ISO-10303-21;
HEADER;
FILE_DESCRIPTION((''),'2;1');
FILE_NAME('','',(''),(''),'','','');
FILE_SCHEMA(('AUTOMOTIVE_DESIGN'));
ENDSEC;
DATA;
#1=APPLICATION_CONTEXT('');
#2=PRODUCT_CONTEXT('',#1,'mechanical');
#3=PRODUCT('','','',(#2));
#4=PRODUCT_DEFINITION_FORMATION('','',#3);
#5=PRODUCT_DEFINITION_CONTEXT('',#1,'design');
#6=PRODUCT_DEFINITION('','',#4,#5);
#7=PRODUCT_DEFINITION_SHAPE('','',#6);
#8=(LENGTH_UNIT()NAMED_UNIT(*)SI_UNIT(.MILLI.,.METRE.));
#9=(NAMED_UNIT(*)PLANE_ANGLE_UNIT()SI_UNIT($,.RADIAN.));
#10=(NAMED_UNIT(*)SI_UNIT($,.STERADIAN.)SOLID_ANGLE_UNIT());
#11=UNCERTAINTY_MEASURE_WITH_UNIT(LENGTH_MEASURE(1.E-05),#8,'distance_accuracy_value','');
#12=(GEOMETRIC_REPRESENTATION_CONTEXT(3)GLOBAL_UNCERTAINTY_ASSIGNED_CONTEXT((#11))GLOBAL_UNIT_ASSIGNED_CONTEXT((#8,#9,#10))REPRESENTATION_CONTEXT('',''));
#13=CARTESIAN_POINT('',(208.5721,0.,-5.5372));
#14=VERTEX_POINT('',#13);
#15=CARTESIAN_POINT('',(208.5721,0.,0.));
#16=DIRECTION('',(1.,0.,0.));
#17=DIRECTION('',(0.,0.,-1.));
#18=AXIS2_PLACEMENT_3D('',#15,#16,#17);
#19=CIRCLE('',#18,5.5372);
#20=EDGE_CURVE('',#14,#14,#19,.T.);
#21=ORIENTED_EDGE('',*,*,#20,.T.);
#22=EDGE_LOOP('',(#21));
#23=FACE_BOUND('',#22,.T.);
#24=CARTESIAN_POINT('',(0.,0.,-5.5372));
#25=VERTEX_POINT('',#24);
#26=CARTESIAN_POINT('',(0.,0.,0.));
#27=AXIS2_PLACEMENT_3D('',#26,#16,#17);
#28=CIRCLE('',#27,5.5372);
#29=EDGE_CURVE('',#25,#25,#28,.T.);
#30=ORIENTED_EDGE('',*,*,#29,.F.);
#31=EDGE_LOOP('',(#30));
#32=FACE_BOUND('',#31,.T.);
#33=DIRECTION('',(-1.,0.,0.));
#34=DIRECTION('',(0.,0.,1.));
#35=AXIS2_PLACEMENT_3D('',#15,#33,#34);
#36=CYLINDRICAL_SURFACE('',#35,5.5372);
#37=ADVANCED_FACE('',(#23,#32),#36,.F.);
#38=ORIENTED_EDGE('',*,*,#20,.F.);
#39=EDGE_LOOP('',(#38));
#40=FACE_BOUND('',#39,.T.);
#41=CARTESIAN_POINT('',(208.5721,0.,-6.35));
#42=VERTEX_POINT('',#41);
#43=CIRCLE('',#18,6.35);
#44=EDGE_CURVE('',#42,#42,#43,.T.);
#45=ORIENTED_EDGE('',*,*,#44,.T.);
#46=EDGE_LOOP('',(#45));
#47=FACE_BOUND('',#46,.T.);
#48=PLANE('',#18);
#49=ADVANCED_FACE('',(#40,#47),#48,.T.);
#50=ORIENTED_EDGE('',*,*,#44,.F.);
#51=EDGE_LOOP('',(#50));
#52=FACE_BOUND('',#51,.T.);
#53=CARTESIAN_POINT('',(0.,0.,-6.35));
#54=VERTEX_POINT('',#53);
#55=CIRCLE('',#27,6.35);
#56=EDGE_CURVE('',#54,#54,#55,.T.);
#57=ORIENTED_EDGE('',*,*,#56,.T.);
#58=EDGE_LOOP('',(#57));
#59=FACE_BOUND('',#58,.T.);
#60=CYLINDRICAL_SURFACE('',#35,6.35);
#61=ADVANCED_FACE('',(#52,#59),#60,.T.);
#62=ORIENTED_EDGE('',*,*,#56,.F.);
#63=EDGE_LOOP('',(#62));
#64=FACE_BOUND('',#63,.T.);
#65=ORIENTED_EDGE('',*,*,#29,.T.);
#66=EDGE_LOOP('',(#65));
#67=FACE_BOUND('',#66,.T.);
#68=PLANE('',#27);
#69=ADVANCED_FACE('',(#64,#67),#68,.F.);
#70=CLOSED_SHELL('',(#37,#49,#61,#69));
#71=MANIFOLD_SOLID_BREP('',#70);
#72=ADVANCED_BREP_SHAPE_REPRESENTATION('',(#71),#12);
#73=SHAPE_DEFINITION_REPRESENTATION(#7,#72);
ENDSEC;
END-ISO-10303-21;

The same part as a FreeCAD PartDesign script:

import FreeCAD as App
import Part
import Sketcher
from FreeCAD import Vector
Q = App.Units.Quantity

doc = App.newDocument("Part")
params = doc.addObject("Spreadsheet::Sheet", "Params")
for row, (alias, value) in enumerate([
    ("sketch1_diameter", "0.5 in"),
    ("sketch1_diameter2", "0.436 in"),
    ("pad1_length", "8.2115 in"),
], start=1):
    params.set(f"A{row}", alias)
    params.set(f"B{row}", "=" + value)
    params.setAlias(f"B{row}", alias)

body = doc.addObject("PartDesign::Body", "Body")

# Sketch on YZ plane
sketch1 = body.newObject("Sketcher::SketchObject", "Sketch")
sketch1.AttachmentSupport = (doc.getObject("YZ_Plane"), [""])
sketch1.MapMode = "FlatFace"
sketch1.addGeometry(Part.Circle(Vector(0, 0, 0), Vector(0, 0, 1), 6), False)
sketch1.addGeometry(Part.Circle(Vector(0, 0, 0), Vector(0, 0, 1), 6), False)
sketch1.addConstraint(Sketcher.Constraint("Coincident", 0, 3, -1, 1))
sketch1.addConstraint(Sketcher.Constraint("Coincident", 1, 3, -1, 1))
sketch1.addConstraint(Sketcher.Constraint("Diameter", 0, Q("0.5 in")))
sketch1.addConstraint(Sketcher.Constraint("Diameter", 1, Q("0.436 in")))
sketch1.setExpression("Constraints[2]", "Params.sketch1_diameter")
sketch1.setExpression("Constraints[3]", "Params.sketch1_diameter2")
pad1 = body.newObject("PartDesign::Pad", "Pad")
pad1.Profile = sketch1
pad1.setExpression("Length", "Params.pad1_length")

doc.recompute()
